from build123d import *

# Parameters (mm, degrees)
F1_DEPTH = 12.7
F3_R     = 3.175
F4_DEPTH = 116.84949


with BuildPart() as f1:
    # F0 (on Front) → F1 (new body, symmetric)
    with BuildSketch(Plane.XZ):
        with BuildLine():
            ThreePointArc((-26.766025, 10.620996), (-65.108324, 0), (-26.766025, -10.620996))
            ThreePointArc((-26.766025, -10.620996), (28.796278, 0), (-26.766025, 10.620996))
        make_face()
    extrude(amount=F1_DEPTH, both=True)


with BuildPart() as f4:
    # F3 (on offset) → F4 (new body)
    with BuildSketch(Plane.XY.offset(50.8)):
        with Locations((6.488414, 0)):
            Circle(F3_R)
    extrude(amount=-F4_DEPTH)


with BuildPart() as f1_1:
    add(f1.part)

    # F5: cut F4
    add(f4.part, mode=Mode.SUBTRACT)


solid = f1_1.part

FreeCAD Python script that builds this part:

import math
import FreeCAD as App
import Part
import Sketcher

V = App.Vector
Q = App.Units.Quantity

doc = App.newDocument("Part")
body = doc.addObject("PartDesign::Body", "Body")

# Sketch on XZ plane
sketch1 = body.newObject("Sketcher::SketchObject", "Sketch")
sketch1.AttachmentSupport = (doc.getObject("XZ_Plane"), [""])
sketch1.MapMode = "FlatFace"
sketch1.addGeometry([
    Part.ArcOfCircle(Part.Circle(V(-44, 0, 0), V(0, 0, 1), 21), math.radians(31), math.radians(329)),
    Part.ArcOfCircle(Part.Circle(V(0, 0, 0), V(0, 0, 1), 29), math.radians(-158), math.radians(158)),
], False)
sketch1.addConstraint([
    Sketcher.Constraint("Coincident", 0, 1, 1, 2),
    Sketcher.Constraint("Coincident", 1, 1, 0, 2),
    Sketcher.Constraint("Coincident", 1, 3, -1, 1),
    Sketcher.Constraint("PointOnObject", 0, 3, -1),
    Sketcher.Constraint("Radius", 1, 28.796278),
    Sketcher.Constraint("Radius", 0, 20.642182),
    Sketcher.Constraint("DistanceX", 0, 3, -1, 1, 44.466142),
])
pad1 = body.newObject("PartDesign::Pad", "Pad")
pad1.Profile = sketch1
pad1.Length = Q("1 in")
pad1.Midplane = True
body2 = doc.addObject("PartDesign::Body", "Body001")

# Sketch on XY plane
sketch2 = body2.newObject("Sketcher::SketchObject", "Sketch001")
sketch2.AttachmentSupport = (doc.getObject("XY_Plane001"), [""])
sketch2.MapMode = "FlatFace"
sketch2.AttachmentOffset = App.Placement(V(0, 0, 2 * 25.4), App.Rotation())
sketch2.addGeometry(Part.Circle(V(6.5, 0, 0), V(0, 0, 1), 3.2), False)
sketch2.addConstraint([
    Sketcher.Constraint("PointOnObject", 0, 3, -1),
    Sketcher.Constraint("Diameter", 0, Q("0.25 in")),
    Sketcher.Constraint("DistanceX", -1, 1, 0, 3, 6.488414),
])
pad2 = body2.newObject("PartDesign::Pad", "Pad001")
pad2.Profile = sketch2
pad2.Length = 116.84949
pad2.Reversed = True
doc.recompute()

boolean = body.newObject("PartDesign::Boolean", "Boolean")
boolean.Type = "Cut"
boolean.addObjects([body2])

doc.recompute()
